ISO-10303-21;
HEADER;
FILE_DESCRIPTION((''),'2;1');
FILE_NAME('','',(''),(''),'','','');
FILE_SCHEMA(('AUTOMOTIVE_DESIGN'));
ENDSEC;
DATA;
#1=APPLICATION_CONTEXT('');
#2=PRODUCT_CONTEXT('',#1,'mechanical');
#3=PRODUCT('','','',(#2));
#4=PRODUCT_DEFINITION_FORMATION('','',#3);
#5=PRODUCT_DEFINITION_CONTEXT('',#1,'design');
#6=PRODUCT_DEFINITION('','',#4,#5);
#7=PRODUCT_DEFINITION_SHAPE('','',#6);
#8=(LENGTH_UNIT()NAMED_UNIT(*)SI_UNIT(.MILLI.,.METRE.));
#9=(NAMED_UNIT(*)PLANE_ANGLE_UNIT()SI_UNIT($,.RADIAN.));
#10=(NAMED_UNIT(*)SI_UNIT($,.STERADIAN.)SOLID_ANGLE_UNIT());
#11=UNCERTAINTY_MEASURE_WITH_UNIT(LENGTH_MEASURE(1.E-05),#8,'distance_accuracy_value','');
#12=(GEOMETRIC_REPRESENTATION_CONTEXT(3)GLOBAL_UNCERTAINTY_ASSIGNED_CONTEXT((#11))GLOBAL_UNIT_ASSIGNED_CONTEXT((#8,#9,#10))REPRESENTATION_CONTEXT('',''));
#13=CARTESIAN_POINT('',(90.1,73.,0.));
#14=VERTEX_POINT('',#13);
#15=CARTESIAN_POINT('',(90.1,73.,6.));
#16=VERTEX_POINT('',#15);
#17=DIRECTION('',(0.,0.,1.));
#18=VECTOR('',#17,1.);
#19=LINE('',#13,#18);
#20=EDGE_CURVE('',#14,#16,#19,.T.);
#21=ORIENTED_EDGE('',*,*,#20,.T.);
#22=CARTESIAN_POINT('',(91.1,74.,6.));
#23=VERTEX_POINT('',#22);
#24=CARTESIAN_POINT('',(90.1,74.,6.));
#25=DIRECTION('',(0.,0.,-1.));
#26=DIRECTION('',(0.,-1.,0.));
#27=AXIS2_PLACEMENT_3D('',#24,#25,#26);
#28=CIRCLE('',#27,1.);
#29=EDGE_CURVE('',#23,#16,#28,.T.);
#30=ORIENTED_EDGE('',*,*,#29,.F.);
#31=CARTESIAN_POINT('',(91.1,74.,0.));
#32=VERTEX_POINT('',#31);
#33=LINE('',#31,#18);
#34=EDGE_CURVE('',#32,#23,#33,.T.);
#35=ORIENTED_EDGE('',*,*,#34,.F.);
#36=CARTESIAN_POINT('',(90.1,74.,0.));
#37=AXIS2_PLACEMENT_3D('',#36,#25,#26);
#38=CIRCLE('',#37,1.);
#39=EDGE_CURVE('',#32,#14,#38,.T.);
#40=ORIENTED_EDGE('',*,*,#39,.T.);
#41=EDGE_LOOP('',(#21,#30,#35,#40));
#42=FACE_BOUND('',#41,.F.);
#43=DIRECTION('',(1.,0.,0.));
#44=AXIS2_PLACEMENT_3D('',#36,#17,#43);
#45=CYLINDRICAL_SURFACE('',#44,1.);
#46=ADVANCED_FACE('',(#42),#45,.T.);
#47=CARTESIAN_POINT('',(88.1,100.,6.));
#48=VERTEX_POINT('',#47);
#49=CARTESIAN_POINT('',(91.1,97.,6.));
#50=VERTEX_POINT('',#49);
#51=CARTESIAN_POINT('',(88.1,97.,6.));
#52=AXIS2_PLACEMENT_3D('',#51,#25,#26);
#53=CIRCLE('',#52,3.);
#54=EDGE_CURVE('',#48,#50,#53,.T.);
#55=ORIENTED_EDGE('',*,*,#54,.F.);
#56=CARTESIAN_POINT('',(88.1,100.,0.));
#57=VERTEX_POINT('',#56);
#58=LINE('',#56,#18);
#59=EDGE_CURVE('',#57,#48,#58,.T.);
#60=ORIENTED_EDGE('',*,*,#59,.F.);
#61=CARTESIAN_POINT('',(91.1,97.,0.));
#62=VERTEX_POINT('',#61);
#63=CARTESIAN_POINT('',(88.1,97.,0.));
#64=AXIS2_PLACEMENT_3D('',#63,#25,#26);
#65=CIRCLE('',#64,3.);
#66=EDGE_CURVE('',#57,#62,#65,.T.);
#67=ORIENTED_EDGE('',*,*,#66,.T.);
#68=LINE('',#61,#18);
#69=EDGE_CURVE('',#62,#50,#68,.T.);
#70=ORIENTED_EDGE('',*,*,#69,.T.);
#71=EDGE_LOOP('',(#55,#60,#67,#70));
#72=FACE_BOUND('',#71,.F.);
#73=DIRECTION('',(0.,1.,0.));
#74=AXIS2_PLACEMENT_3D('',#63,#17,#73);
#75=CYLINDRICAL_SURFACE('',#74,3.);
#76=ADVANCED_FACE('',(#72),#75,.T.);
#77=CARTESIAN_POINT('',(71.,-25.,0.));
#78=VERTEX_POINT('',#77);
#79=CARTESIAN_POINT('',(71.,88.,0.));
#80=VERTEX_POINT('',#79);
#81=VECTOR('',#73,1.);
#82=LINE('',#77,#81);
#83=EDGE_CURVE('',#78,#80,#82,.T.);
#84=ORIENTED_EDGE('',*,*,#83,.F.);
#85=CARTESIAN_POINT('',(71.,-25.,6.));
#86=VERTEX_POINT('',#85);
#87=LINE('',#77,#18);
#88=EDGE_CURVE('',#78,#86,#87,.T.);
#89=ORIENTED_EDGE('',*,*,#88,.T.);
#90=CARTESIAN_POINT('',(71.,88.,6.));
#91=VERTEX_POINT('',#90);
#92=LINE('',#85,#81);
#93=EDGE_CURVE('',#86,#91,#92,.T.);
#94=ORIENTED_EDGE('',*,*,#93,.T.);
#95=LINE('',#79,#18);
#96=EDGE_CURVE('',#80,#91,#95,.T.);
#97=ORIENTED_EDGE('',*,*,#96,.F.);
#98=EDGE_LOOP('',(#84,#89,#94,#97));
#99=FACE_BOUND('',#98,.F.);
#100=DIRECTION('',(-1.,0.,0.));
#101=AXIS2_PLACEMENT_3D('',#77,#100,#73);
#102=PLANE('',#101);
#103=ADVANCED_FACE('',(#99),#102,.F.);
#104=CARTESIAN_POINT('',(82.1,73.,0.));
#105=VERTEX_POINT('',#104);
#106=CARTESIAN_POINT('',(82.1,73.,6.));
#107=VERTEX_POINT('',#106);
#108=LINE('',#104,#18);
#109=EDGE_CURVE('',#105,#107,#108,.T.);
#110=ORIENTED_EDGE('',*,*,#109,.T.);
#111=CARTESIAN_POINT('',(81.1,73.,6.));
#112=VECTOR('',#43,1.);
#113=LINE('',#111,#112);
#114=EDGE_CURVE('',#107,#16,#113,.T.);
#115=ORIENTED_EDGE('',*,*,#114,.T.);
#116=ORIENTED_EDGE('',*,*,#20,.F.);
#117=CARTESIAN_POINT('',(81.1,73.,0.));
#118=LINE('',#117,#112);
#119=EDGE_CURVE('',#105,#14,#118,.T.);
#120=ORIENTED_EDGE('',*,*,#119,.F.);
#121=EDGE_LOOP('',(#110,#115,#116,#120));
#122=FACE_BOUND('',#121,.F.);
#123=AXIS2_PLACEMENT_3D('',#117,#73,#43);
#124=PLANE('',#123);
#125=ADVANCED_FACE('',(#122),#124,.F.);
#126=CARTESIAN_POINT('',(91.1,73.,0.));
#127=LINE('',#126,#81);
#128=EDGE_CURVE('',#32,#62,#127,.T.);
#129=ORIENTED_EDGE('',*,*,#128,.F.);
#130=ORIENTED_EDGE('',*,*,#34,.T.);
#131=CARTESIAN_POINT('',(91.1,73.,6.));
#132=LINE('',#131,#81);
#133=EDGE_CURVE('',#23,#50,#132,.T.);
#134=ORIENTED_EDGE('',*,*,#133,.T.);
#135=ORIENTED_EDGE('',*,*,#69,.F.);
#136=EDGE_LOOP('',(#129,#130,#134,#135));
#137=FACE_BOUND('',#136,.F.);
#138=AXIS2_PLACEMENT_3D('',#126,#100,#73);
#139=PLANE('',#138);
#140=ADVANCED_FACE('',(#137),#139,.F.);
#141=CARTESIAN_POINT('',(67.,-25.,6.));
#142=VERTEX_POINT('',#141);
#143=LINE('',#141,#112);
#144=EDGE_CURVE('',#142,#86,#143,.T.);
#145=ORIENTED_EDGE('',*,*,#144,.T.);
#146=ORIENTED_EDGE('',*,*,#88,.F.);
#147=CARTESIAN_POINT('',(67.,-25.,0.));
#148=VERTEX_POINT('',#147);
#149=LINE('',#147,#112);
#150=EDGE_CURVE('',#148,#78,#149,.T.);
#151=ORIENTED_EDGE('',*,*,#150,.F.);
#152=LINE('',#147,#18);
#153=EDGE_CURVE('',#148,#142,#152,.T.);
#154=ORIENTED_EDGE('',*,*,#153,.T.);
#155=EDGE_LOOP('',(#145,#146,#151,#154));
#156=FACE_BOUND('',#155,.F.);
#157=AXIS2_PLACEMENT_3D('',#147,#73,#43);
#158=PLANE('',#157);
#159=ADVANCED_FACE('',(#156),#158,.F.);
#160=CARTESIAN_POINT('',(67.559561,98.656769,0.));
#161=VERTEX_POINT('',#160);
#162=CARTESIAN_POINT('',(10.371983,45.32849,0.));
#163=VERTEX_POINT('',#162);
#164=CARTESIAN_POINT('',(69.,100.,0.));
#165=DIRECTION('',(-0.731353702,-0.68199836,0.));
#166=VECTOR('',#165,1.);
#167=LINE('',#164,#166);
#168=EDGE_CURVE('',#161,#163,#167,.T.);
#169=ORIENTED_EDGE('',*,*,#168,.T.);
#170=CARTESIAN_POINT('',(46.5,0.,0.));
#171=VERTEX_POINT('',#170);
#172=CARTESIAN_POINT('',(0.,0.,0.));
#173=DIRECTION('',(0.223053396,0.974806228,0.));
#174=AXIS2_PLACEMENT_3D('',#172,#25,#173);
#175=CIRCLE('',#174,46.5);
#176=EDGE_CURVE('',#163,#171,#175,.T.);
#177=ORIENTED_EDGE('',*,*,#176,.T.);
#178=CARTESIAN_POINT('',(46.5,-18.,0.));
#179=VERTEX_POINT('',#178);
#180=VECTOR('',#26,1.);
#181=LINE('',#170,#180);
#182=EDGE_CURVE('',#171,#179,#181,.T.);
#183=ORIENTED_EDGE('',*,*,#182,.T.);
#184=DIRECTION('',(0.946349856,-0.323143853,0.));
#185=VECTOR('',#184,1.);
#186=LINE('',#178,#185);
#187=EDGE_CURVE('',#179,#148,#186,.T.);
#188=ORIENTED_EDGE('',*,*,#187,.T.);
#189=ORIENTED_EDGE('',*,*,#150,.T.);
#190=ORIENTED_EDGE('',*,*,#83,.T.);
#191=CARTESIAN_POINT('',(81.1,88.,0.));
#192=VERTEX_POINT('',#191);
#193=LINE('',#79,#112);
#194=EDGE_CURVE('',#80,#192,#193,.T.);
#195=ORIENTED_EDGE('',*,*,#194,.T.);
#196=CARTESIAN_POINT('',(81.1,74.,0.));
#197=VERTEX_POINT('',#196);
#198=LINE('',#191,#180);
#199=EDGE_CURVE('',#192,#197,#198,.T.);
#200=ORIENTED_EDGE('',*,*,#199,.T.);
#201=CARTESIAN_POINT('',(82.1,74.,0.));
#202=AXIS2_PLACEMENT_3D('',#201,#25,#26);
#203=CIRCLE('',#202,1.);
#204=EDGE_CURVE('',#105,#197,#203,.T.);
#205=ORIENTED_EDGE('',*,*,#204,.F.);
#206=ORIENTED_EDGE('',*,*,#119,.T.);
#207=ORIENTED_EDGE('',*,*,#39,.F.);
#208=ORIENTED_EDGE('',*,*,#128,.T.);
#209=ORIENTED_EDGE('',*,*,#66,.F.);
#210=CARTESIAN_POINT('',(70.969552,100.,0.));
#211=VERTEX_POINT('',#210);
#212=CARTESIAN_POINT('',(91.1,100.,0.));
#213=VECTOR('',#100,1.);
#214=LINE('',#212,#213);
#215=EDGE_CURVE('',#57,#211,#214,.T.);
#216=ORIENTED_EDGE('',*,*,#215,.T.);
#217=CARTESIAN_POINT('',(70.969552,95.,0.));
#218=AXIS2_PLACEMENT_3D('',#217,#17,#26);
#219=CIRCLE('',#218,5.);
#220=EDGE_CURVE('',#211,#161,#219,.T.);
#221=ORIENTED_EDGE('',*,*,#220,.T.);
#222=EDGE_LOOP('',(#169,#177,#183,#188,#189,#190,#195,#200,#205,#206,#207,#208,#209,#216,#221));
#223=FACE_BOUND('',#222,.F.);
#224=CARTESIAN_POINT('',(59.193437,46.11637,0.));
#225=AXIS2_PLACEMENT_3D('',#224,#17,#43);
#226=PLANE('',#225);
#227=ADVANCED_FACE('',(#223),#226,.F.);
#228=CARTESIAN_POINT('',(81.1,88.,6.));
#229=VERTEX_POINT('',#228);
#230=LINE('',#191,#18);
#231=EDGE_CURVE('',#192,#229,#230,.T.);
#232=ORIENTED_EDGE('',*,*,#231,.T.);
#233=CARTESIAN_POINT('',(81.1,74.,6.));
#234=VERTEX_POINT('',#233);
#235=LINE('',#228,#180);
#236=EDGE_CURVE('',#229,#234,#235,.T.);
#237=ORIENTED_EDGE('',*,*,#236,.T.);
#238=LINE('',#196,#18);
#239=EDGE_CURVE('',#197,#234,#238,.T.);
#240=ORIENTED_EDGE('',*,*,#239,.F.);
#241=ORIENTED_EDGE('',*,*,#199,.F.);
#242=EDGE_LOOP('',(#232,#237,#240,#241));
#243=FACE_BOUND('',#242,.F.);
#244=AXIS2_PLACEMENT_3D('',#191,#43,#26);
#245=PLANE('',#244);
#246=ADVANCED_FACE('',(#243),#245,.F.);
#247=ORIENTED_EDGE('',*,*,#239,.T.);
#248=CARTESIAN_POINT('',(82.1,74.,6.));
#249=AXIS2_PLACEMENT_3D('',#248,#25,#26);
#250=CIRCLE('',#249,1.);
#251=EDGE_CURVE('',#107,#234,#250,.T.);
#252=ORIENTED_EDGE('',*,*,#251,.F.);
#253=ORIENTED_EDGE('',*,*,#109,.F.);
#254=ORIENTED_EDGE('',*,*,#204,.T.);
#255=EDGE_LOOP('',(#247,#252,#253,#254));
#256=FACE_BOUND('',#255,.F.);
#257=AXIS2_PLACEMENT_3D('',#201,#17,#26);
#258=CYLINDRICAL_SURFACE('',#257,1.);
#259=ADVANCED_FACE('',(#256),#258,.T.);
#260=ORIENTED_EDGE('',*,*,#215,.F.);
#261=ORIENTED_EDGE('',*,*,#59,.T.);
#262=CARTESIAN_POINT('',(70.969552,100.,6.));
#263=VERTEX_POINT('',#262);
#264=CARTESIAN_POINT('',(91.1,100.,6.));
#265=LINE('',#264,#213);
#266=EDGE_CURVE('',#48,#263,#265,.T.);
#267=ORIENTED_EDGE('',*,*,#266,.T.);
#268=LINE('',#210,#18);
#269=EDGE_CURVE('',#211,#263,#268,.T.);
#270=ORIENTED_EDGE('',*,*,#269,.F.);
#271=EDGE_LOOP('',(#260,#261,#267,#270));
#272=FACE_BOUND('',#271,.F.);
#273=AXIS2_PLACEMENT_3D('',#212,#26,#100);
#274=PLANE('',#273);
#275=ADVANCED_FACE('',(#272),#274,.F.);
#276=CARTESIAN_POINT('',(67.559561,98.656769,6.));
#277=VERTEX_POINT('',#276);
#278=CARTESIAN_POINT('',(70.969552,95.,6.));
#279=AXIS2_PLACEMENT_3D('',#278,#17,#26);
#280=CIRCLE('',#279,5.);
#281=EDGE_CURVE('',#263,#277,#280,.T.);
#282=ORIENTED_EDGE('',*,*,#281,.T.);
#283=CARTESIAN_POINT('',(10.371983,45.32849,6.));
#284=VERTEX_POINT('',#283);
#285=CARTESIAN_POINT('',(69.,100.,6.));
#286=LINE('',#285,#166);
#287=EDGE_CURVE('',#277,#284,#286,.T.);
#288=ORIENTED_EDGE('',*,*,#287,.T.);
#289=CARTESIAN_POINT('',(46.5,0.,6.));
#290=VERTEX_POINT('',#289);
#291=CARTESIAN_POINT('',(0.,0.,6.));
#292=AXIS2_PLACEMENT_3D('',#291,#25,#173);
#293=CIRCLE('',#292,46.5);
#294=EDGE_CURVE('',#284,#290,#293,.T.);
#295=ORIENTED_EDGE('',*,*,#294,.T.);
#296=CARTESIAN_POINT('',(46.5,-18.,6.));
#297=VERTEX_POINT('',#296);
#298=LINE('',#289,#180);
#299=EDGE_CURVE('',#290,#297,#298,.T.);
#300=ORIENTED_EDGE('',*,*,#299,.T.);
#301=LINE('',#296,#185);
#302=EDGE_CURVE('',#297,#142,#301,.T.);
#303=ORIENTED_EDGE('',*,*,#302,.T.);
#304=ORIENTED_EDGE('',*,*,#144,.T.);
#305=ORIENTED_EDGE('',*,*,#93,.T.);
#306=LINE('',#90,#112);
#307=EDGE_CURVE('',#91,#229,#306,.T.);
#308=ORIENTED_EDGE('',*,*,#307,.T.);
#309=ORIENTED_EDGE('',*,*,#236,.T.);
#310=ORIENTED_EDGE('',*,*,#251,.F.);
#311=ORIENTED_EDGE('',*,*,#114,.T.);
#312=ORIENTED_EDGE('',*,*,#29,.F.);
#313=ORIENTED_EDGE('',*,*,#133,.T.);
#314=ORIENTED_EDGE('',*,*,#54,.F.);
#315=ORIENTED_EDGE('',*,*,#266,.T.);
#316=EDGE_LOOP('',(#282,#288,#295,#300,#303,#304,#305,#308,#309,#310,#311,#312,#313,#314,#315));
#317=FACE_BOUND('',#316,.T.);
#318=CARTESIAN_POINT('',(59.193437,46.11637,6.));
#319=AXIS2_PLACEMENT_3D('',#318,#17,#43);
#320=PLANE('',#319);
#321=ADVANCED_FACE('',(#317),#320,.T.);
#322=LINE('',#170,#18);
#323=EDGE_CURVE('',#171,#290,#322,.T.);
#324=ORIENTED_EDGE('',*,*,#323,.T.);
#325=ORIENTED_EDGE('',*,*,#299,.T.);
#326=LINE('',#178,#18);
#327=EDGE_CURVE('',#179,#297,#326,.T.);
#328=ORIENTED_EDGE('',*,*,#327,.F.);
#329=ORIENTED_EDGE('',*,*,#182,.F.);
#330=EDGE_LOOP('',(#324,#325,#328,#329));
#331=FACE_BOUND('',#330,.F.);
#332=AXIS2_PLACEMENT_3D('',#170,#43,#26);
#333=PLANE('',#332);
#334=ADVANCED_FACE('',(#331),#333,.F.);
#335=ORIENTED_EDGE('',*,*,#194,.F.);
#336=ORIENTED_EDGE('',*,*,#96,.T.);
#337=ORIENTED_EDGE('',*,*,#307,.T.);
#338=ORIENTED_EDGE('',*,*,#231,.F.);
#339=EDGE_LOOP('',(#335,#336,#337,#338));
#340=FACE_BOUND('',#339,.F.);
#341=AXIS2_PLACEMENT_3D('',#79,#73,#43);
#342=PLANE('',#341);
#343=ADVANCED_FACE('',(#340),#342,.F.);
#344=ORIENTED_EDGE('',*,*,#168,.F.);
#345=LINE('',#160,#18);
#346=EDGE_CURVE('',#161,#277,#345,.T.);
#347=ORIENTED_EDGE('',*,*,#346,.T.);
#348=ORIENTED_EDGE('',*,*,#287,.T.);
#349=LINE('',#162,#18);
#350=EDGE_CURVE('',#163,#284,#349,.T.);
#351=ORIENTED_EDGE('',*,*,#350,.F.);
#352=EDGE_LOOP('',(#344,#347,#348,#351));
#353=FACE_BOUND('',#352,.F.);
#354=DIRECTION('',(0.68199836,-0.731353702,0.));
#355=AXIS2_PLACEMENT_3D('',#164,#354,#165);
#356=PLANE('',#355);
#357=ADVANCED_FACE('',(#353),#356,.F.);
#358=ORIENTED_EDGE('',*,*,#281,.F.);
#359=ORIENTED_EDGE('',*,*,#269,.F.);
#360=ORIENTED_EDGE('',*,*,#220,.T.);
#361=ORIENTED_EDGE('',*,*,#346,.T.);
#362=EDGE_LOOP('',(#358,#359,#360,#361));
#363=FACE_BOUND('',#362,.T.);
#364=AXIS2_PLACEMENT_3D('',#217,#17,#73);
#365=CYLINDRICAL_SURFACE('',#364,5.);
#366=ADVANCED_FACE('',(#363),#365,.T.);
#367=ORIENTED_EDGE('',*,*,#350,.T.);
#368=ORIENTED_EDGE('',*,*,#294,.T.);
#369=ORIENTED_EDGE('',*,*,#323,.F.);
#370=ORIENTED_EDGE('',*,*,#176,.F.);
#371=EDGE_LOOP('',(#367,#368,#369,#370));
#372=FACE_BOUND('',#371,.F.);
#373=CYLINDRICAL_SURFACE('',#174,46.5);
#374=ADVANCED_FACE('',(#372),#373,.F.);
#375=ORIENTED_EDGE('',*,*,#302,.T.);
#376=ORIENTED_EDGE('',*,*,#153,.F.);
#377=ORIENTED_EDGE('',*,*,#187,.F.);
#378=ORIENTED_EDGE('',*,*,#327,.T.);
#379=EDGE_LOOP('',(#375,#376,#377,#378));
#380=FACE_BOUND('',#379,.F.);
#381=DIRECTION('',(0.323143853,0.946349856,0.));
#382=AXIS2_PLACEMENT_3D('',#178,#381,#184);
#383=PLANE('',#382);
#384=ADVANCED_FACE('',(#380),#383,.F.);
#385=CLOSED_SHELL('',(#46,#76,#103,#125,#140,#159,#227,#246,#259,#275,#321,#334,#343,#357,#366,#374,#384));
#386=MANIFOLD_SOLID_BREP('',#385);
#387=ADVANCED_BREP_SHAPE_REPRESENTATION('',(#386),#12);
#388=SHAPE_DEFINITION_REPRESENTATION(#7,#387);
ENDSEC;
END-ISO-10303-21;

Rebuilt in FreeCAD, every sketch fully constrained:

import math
import FreeCAD as App
import Part
import Sketcher
from FreeCAD import Vector
Q = App.Units.Quantity


def edges_at(feature, points):
    """Names of the edges that pass closest to the given points."""
    edges = feature.Shape.Edges
    near = lambda p: min(range(len(edges)), key=lambda i: edges[i].distToShape(Part.Vertex(*p))[0])
    return sorted({f"Edge{near(p) + 1}" for p in points})

doc = App.newDocument("Part")
body = doc.addObject("PartDesign::Body", "Body")

# Sketch on XY plane
sketch1 = doc.addObject("Sketcher::SketchObject", "Sketch")
body.addObject(sketch1)
sketch1.AttachmentSupport = (doc.XY_Plane, [""])
sketch1.MapMode = "FlatFace"
sketch1.addGeometry([
    Part.LineSegment(Vector(46.5, 0, 0), Vector(46.5, -18, 0)),  # 0
    Part.LineSegment(Vector(46.5, -18, 0), Vector(67, -25, 0)),  # 1
    Part.LineSegment(Vector(67, -25, 0), Vector(71, -25, 0)),  # 2
    Part.LineSegment(Vector(71, -25, 0), Vector(71, 88, 0)),  # 3
    Part.LineSegment(Vector(71, 88, 0), Vector(81.1, 88, 0)),  # 4
    Part.LineSegment(Vector(81.1, 88, 0), Vector(81.1, 73, 0)),  # 5
    Part.LineSegment(Vector(81.1, 73, 0), Vector(91.1, 73, 0)),  # 6
    Part.LineSegment(Vector(91.1, 73, 0), Vector(91.1, 100, 0)),  # 7
    Part.LineSegment(Vector(91.1, 100, 0), Vector(69, 100, 0)),  # 8
    Part.LineSegment(Vector(69, 100, 0), Vector(10.371983, 45.32849, 0)),  # 9
    Part.ArcOfCircle(Part.Circle(Vector(0, 0, 0), Vector(0, 0, 1), 46.5), math.radians(0), math.radians(77.111563)),  # 10
], False)
sketch1.addConstraint([
    Sketcher.Constraint("Coincident", 0, 2, 1, 1),
    Sketcher.Constraint("Coincident", 1, 2, 2, 1),
    Sketcher.Constraint("Coincident", 2, 2, 3, 1),
    Sketcher.Constraint("Coincident", 3, 2, 4, 1),
    Sketcher.Constraint("Coincident", 4, 2, 5, 1),
    Sketcher.Constraint("Coincident", 5, 2, 6, 1),
    Sketcher.Constraint("Coincident", 6, 2, 7, 1),
    Sketcher.Constraint("Coincident", 7, 2, 8, 1),
    Sketcher.Constraint("Coincident", 8, 2, 9, 1),
    Sketcher.Constraint("Coincident", 9, 2, 10, 2),
    Sketcher.Constraint("Tangent", 10, 1, 0, 1),
    Sketcher.Constraint("Vertical", 0),
    Sketcher.Constraint("Horizontal", 2),
    Sketcher.Constraint("Vertical", 3),
    Sketcher.Constraint("Horizontal", 4),
    Sketcher.Constraint("Vertical", 5),
    Sketcher.Constraint("Horizontal", 6),
    Sketcher.Constraint("Vertical", 7),
    Sketcher.Constraint("Horizontal", 8),
    Sketcher.Constraint("Coincident", 10, 3, -1, 1),
    Sketcher.Constraint("Radius", 10, 46.5),
    Sketcher.Constraint("DistanceX", 2, 1, 2, 2, 4.0),
    Sketcher.Constraint("DistanceX", 6, 1, 6, 2, 10.0),
    Sketcher.Constraint("DistanceY", 0, 2, 0, 1, 18.0),
    Sketcher.Constraint("DistanceY", 3, 1, 3, 2, 113.0),
    Sketcher.Constraint("DistanceY", 5, 2, 5, 1, 15.0),
    Sketcher.Constraint("DistanceY", 7, 1, 7, 2, 27.0),
    Sketcher.Constraint("Angle", 9, Q("-137 deg")),
    Sketcher.Constraint("DistanceX", 4, 1, 4, 2, 10.1),
    Sketcher.Constraint("DistanceX", 8, 2, 8, 1, 22.1),
    Sketcher.Constraint("DistanceX", -1, 1, 1, 2, 67.0),
    Sketcher.Constraint("DistanceY", 1, 2, -1, 1, 25.0),
])
pad1 = doc.addObject("PartDesign::Pad", "Pad")
body.addObject(pad1)
pad1.Profile = sketch1
pad1.Length = 6
doc.recompute()

fillet = doc.addObject("PartDesign::Fillet", "Fillet")
body.addObject(fillet)
fillet.Base = (pad1, edges_at(pad1, [(69, 100, 3)]))
fillet.Radius = 5
doc.recompute()

fillet2 = doc.addObject("PartDesign::Fillet", "Fillet001")
body.addObject(fillet2)
fillet2.Base = (fillet, edges_at(fillet, [(91.1, 100, 3)]))
fillet2.Radius = 3
doc.recompute()

fillet3 = doc.addObject("PartDesign::Fillet", "Fillet002")
body.addObject(fillet3)
fillet3.Base = (fillet2, edges_at(fillet2, [(91.1, 73, 3), (81.1, 73, 3)]))
fillet3.Radius = 1

doc.recompute()
